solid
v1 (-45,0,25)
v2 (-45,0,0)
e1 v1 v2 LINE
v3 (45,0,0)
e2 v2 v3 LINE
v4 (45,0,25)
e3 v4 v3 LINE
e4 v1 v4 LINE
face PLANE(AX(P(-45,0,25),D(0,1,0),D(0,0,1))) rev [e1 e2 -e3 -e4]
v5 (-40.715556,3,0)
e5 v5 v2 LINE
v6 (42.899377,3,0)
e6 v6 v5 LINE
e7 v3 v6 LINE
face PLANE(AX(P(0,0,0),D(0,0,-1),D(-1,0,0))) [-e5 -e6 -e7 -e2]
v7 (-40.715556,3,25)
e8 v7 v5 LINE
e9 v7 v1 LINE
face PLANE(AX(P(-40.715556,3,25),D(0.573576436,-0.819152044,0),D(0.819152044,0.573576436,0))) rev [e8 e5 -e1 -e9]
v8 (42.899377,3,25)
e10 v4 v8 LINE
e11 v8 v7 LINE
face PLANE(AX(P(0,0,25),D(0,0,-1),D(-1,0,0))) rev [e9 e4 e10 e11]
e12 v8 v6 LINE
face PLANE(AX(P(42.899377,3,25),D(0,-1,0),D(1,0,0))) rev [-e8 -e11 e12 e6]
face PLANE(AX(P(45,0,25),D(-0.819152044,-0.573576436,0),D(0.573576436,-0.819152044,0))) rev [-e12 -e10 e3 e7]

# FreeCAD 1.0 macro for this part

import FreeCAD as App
import Part
import Sketcher
from FreeCAD import Vector
Q = App.Units.Quantity

doc = App.newDocument("Part")
body = doc.addObject("PartDesign::Body", "Body")

sketch1 = body.newObject("Sketcher::SketchObject", "Sketch")
sketch1.AttachmentSupport = (doc.getObject("XY_Plane"), [""])
sketch1.MapMode = "FlatFace"
sketch1.addGeometry(Part.LineSegment(Vector(-45, 0, 0), Vector(45, 0, 0)), False)
sketch1.addGeometry(Part.LineSegment(Vector(45, 0, 0), Vector(42.899377, 3, 0)), False)
sketch1.addGeometry(Part.LineSegment(Vector(42.899377, 3, 0), Vector(-40.715556, 3, 0)), False)
sketch1.addGeometry(Part.LineSegment(Vector(-40.715556, 3, 0), Vector(-45, 0, 0)), False)
sketch1.addConstraint(Sketcher.Constraint("Coincident", 0, 2, 1, 1))
sketch1.addConstraint(Sketcher.Constraint("Coincident", 1, 2, 2, 1))
sketch1.addConstraint(Sketcher.Constraint("Coincident", 2, 2, 3, 1))
sketch1.addConstraint(Sketcher.Constraint("Coincident", 3, 2, 0, 1))
sketch1.addConstraint(Sketcher.Constraint("Horizontal", 0))
sketch1.addConstraint(Sketcher.Constraint("Horizontal", 2))
sketch1.addConstraint(Sketcher.Constraint("Symmetric", 0, 2, 3, 2, -1, 1))
sketch1.addConstraint(Sketcher.Constraint("Perpendicular", 1, 3))
sketch1.addConstraint(Sketcher.Constraint("DistanceX", 0, 1, 0, 2, 90.0))
sketch1.addConstraint(Sketcher.Constraint("Angle", 1, Q("125 deg")))
sketch1.addConstraint(Sketcher.Constraint("DistanceY", -1, 1, 1, 2, 3.0))
pad1 = body.newObject("PartDesign::Pad", "Pad")
pad1.Profile = sketch1
pad1.Length = 25

doc.recompute()
